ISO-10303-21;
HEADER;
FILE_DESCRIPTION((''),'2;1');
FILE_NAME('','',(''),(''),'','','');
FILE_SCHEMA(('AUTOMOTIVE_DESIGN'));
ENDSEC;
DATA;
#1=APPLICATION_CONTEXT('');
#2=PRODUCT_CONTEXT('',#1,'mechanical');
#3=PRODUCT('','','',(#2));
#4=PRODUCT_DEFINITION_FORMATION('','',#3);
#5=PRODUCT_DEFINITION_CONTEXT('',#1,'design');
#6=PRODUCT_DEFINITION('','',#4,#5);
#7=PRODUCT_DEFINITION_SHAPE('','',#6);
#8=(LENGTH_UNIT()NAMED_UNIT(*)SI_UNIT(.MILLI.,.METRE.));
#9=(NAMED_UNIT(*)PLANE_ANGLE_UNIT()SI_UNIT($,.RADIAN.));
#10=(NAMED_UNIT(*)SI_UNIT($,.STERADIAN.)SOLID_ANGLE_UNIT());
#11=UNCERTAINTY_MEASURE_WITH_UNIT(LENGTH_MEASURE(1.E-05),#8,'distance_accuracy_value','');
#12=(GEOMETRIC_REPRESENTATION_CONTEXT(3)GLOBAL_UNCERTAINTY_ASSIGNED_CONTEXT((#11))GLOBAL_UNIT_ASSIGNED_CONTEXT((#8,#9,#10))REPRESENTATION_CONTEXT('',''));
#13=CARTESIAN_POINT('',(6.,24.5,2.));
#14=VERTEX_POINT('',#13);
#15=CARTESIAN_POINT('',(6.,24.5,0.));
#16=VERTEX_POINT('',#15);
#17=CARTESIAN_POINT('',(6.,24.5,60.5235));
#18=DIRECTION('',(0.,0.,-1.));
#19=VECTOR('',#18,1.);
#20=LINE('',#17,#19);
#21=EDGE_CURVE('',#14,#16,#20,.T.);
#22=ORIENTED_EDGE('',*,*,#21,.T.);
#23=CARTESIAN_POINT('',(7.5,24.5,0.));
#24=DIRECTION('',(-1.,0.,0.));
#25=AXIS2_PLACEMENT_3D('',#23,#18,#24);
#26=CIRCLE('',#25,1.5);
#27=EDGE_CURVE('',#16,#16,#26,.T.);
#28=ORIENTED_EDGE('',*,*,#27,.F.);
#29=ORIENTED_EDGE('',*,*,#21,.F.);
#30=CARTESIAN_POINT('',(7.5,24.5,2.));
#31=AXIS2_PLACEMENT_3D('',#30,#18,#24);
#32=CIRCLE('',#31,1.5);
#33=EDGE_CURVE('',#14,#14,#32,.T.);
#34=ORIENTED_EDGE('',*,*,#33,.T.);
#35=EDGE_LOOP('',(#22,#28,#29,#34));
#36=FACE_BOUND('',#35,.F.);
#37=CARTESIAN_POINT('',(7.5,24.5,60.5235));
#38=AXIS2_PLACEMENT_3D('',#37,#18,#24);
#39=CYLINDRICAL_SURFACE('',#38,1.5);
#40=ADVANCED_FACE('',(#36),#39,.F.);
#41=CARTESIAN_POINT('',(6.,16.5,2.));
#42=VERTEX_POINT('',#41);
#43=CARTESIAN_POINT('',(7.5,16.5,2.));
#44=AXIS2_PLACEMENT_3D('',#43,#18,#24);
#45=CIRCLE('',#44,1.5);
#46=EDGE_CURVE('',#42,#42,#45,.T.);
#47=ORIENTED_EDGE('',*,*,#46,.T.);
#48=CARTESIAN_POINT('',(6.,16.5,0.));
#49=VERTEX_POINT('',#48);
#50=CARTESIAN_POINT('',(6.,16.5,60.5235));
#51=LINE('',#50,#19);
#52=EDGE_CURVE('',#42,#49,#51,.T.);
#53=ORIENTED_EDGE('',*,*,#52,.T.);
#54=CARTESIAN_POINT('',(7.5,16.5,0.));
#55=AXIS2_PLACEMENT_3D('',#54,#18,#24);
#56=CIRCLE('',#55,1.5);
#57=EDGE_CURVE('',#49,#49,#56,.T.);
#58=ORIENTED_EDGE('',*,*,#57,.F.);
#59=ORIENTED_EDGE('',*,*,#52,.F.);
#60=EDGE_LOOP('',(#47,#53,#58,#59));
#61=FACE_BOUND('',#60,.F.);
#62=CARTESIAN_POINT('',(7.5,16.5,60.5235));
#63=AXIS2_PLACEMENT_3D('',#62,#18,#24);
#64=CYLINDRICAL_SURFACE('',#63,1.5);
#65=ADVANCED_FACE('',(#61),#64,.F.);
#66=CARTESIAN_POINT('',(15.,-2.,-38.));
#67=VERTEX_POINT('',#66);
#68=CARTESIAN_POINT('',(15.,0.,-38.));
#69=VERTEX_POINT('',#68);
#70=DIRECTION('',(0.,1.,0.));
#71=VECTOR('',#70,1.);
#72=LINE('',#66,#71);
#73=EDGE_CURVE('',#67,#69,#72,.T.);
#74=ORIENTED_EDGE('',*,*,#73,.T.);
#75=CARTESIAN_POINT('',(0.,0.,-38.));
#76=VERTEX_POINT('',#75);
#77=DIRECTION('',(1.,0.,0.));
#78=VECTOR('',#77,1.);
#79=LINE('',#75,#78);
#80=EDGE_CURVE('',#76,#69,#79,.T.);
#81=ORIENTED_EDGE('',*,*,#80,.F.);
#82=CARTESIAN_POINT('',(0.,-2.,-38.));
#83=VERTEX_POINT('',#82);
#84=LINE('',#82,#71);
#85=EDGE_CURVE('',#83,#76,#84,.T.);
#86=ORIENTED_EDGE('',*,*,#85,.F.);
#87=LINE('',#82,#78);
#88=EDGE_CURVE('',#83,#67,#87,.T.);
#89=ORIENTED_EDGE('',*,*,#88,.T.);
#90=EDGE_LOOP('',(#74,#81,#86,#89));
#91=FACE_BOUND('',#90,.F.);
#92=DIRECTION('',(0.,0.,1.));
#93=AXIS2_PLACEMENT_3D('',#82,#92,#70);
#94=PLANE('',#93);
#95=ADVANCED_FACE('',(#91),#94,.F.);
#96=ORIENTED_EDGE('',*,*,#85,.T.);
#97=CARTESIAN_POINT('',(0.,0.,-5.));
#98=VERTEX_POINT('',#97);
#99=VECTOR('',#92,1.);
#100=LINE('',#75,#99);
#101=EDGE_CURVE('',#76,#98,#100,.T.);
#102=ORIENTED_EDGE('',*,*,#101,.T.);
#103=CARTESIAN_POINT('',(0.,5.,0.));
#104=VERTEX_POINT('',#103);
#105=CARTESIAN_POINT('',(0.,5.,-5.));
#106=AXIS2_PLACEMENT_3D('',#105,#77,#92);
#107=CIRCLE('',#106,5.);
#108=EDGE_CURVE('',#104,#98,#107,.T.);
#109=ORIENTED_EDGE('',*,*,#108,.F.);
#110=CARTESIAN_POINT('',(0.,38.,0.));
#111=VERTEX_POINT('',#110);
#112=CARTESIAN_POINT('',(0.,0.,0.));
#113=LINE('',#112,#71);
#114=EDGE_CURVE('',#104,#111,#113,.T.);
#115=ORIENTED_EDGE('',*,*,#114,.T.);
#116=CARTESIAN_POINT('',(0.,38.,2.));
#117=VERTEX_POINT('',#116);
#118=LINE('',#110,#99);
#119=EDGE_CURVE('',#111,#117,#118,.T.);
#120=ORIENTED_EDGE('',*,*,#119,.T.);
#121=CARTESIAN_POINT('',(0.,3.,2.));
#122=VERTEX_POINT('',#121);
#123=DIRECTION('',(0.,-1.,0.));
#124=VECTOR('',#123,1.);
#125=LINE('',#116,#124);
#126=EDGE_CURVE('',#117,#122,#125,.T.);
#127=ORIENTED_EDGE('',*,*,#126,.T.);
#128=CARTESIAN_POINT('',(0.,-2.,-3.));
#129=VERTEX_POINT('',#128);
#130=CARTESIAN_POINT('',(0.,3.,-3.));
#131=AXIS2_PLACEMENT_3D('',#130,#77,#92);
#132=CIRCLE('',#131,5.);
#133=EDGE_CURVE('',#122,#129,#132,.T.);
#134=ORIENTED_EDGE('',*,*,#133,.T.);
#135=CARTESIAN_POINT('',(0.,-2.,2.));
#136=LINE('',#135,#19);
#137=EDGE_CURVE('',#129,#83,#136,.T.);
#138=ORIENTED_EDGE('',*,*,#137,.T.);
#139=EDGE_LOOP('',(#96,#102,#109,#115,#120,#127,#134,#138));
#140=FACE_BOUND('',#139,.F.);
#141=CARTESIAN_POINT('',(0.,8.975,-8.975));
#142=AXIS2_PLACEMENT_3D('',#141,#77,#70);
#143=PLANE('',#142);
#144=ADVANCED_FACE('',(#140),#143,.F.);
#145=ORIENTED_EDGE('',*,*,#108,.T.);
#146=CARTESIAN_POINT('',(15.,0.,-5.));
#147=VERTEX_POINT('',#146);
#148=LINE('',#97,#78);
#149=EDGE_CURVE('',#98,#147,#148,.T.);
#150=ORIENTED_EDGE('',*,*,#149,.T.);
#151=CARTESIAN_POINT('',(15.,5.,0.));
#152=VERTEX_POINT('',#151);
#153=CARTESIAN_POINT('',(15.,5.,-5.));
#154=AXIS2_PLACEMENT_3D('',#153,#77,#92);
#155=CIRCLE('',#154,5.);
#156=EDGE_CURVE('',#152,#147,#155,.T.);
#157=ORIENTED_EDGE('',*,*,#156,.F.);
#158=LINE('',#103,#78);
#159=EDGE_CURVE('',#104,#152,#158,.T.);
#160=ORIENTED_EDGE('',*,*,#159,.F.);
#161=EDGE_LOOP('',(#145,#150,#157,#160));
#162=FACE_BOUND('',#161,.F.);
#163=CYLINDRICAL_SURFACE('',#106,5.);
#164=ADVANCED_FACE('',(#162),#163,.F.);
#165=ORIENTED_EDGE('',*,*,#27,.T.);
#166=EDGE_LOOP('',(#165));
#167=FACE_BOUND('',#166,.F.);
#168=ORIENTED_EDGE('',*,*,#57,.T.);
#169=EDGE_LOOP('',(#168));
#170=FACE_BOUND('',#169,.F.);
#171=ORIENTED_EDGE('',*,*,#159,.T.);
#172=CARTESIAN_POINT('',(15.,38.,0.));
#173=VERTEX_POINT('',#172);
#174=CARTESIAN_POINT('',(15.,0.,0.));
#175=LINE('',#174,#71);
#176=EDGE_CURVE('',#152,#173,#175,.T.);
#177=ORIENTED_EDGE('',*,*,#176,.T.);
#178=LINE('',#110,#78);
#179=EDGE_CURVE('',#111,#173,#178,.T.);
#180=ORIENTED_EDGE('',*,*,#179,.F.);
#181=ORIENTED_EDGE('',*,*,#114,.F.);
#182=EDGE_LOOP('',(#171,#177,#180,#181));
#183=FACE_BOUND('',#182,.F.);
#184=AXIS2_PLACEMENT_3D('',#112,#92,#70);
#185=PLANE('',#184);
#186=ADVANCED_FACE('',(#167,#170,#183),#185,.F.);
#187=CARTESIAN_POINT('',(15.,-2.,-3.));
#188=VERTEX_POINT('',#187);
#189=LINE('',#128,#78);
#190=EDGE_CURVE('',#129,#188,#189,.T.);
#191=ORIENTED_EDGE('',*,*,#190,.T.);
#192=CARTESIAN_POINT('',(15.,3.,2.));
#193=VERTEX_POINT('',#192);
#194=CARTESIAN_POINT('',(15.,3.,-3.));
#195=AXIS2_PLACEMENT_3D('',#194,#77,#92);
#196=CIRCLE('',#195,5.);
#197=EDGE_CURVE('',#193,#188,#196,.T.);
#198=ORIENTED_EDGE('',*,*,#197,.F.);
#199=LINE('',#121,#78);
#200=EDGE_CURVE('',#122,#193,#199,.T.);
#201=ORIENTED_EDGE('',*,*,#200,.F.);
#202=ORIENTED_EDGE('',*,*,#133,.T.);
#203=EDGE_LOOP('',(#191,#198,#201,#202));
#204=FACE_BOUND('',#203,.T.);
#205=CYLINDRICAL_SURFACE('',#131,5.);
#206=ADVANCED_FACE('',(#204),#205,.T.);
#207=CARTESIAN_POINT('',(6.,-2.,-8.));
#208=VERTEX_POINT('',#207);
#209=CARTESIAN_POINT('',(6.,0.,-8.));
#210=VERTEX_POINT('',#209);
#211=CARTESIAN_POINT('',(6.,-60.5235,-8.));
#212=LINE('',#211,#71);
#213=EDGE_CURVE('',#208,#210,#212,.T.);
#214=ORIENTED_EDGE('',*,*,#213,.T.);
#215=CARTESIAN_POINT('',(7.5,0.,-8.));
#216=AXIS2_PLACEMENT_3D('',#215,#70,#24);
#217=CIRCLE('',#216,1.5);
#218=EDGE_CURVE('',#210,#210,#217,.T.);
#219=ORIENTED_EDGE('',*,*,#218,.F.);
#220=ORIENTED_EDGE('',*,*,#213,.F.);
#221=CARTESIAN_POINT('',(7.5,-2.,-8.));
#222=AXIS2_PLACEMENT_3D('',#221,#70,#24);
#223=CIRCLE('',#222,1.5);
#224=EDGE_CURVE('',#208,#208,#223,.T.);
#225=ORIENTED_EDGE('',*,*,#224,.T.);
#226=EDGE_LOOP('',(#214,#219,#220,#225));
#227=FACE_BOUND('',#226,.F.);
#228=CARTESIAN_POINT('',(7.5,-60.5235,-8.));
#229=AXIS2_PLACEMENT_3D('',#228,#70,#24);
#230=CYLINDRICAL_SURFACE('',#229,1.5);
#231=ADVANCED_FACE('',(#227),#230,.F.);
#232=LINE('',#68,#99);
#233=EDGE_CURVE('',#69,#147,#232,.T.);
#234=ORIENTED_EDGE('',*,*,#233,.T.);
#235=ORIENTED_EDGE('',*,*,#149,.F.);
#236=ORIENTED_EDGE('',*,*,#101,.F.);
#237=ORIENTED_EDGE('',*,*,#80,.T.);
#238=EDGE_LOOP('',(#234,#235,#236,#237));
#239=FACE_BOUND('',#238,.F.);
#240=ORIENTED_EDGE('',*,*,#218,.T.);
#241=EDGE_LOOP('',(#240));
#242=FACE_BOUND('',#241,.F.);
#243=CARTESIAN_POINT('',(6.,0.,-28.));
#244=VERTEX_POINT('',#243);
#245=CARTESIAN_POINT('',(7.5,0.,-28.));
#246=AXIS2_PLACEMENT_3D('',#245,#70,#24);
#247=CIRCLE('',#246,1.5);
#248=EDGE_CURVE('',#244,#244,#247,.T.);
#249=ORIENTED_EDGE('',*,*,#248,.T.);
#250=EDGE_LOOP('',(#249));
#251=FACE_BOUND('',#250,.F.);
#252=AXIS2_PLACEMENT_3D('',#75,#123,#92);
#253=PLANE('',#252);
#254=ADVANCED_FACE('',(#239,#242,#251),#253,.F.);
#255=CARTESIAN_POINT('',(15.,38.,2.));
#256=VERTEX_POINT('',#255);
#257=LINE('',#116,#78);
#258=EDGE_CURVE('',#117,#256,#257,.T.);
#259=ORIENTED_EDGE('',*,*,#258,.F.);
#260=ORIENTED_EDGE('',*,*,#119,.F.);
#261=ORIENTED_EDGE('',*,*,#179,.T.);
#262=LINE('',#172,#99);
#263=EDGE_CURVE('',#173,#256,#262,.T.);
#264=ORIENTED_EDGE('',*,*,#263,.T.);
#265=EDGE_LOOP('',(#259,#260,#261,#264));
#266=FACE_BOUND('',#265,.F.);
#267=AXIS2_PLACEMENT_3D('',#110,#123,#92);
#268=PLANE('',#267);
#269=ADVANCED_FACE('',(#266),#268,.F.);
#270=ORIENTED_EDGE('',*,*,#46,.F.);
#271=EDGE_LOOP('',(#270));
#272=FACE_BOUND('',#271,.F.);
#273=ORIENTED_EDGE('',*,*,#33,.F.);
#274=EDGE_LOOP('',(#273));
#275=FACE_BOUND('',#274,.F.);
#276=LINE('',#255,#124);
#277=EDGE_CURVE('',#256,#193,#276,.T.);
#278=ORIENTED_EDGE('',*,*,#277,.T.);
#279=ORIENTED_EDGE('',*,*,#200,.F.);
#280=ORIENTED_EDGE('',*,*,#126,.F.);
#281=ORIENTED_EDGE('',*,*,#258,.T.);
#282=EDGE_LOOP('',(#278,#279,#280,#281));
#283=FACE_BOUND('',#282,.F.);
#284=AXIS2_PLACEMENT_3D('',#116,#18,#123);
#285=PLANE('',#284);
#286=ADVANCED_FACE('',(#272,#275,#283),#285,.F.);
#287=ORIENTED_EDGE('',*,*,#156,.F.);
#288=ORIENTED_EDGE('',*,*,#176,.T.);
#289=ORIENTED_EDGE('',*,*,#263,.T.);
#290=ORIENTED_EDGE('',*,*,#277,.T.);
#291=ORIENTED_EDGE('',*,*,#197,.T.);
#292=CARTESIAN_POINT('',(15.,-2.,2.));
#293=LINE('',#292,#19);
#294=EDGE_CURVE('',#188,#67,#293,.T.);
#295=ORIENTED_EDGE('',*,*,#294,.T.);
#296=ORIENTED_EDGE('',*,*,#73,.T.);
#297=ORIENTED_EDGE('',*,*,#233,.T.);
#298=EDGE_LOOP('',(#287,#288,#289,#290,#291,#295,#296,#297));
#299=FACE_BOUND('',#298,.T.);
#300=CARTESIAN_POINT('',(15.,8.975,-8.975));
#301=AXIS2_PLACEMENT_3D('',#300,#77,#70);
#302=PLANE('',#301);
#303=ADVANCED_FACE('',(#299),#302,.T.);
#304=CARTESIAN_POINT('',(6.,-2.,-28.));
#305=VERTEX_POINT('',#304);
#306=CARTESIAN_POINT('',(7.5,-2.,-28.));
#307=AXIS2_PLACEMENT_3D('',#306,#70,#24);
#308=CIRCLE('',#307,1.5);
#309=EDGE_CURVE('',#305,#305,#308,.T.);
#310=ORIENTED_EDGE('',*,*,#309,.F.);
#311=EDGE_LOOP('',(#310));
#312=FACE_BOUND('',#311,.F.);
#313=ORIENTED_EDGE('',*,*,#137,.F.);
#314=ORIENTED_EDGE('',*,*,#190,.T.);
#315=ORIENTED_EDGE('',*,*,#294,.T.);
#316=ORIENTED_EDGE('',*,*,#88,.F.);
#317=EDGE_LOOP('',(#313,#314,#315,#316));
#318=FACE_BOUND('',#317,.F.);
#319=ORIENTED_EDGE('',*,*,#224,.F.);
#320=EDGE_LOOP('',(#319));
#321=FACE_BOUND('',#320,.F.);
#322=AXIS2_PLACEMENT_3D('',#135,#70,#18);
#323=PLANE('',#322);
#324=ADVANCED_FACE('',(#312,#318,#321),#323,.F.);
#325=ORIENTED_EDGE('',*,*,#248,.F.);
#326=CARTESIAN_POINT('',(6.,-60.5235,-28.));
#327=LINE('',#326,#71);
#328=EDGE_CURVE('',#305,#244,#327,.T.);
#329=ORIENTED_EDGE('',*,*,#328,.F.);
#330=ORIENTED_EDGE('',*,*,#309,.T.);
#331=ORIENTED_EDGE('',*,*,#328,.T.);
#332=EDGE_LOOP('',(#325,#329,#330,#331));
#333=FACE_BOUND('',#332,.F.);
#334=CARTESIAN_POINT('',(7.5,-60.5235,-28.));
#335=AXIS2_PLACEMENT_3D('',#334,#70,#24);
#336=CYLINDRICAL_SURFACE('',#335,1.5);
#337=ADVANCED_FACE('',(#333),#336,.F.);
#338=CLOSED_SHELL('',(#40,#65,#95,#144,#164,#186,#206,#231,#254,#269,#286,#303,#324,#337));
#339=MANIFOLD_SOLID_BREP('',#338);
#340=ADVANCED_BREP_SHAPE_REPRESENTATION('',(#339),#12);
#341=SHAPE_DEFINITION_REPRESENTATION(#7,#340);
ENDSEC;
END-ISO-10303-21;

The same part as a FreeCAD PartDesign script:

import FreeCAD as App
import Part
import Sketcher
from FreeCAD import Vector


def edges_at(feature, points):
    """Names of the edges that pass closest to the given points."""
    edges = feature.Shape.Edges
    near = lambda p: min(range(len(edges)), key=lambda i: edges[i].distToShape(Part.Vertex(*p))[0])
    return sorted({f"Edge{near(p) + 1}" for p in points})

doc = App.newDocument("Part")
body = doc.addObject("PartDesign::Body", "Body")

# Sketch on YZ plane
sketch1 = body.newObject("Sketcher::SketchObject", "Sketch")
sketch1.AttachmentSupport = (doc.getObject("YZ_Plane"), [""])
sketch1.MapMode = "FlatFace"
sketch1.addGeometry([
    Part.LineSegment(Vector(-2, -38, 0), Vector(0, -38, 0)),  # 0
    Part.LineSegment(Vector(0, -38, 0), Vector(0, 0, 0)),  # 1
    Part.LineSegment(Vector(0, 0, 0), Vector(38, 0, 0)),  # 2
    Part.LineSegment(Vector(38, 0, 0), Vector(38, 2, 0)),  # 3
    Part.LineSegment(Vector(38, 2, 0), Vector(-2, 2, 0)),  # 4
    Part.LineSegment(Vector(-2, 2, 0), Vector(-2, -38, 0)),  # 5
], False)
sketch1.addConstraint([
    Sketcher.Constraint("Coincident", 0, 2, 1, 1),
    Sketcher.Constraint("Coincident", 1, 2, 2, 1),
    Sketcher.Constraint("Coincident", 2, 2, 3, 1),
    Sketcher.Constraint("Coincident", 3, 2, 4, 1),
    Sketcher.Constraint("Coincident", 4, 2, 5, 1),
    Sketcher.Constraint("Coincident", 5, 2, 0, 1),
    Sketcher.Constraint("Horizontal", 0),
    Sketcher.Constraint("Vertical", 1),
    Sketcher.Constraint("Horizontal", 2),
    Sketcher.Constraint("Vertical", 3),
    Sketcher.Constraint("Horizontal", 4),
    Sketcher.Constraint("Vertical", 5),
    Sketcher.Constraint("Coincident", 1, 2, -1, 1),
    Sketcher.Constraint("Equal", 2, 1),
    Sketcher.Constraint("Equal", 0, 3),
    Sketcher.Constraint("DistanceX", 0, 1, 0, 2, 2.0),
    Sketcher.Constraint("DistanceX", 2, 1, 2, 2, 38.0),
])
pad1 = body.newObject("PartDesign::Pad", "Pad")
pad1.Profile = sketch1
pad1.Length = 15
doc.recompute()

fillet = body.newObject("PartDesign::Fillet", "Fillet")
fillet.Base = (pad1, edges_at(pad1, [(7.5, -2, 2)]))
fillet.Radius = 5
doc.recompute()

fillet2 = body.newObject("PartDesign::Fillet", "Fillet001")
fillet2.Base = (fillet, edges_at(fillet, [(7.5, 0, 0)]))
fillet2.Radius = 5

# Sketch on XY plane
sketch2 = body.newObject("Sketcher::SketchObject", "Sketch001")
sketch2.AttachmentSupport = (doc.getObject("XY_Plane"), [""])
sketch2.MapMode = "FlatFace"
sketch2.AttachmentOffset = App.Placement(Vector(0, 0, 2), App.Rotation())
sketch2.addGeometry([
    Part.Circle(Vector(7.5, 24.5, 0), Vector(0, 0, 1), 1.5),
    Part.Circle(Vector(7.5, 16.5, 0), Vector(0, 0, 1), 1.5),
], False)
sketch2.addConstraint([
    Sketcher.Constraint("Equal", 0, 1),
    Sketcher.Constraint("Vertical", 0, 3, 1, 3),
    Sketcher.Constraint("Diameter", 0, 3.0),
    Sketcher.Constraint("DistanceY", 1, 3, 0, 3, 8.0),
    Sketcher.Constraint("DistanceX", -1, 1, 0, 3, 7.5),
    Sketcher.Constraint("DistanceY", -1, 1, 0, 3, 24.5),
])
doc.recompute()
hole = body.newObject("PartDesign::Hole", "Hole")
hole.Profile = sketch2
hole.ThreadType = "None"
hole.Diameter = 3
hole.DepthType = "ThroughAll"

# Sketch on XZ plane
sketch3 = body.newObject("Sketcher::SketchObject", "Sketch002")
sketch3.AttachmentSupport = (doc.getObject("XZ_Plane"), [""])
sketch3.MapMode = "FlatFace"
sketch3.AttachmentOffset = App.Placement(Vector(0, 0, 2), App.Rotation())
sketch3.addGeometry([
    Part.Circle(Vector(7.5, -8, 0), Vector(0, 0, 1), 1.5),
    Part.Circle(Vector(7.5, -28, 0), Vector(0, 0, 1), 1.5),
], False)
sketch3.addConstraint([
    Sketcher.Constraint("Equal", 0, 1),
    Sketcher.Constraint("Vertical", 0, 3, 1, 3),
    Sketcher.Constraint("Diameter", 0, 3.0),
    Sketcher.Constraint("DistanceY", 0, 3, -1, 1, 8.0),
    Sketcher.Constraint("DistanceY", 1, 3, -1, 1, 28.0),
    Sketcher.Constraint("DistanceX", -1, 1, 0, 3, 7.5),
])
doc.recompute()
hole2 = body.newObject("PartDesign::Hole", "Hole001")
hole2.Profile = sketch3
hole2.ThreadType = "None"
hole2.Diameter = 3
hole2.DepthType = "ThroughAll"

doc.recompute()
